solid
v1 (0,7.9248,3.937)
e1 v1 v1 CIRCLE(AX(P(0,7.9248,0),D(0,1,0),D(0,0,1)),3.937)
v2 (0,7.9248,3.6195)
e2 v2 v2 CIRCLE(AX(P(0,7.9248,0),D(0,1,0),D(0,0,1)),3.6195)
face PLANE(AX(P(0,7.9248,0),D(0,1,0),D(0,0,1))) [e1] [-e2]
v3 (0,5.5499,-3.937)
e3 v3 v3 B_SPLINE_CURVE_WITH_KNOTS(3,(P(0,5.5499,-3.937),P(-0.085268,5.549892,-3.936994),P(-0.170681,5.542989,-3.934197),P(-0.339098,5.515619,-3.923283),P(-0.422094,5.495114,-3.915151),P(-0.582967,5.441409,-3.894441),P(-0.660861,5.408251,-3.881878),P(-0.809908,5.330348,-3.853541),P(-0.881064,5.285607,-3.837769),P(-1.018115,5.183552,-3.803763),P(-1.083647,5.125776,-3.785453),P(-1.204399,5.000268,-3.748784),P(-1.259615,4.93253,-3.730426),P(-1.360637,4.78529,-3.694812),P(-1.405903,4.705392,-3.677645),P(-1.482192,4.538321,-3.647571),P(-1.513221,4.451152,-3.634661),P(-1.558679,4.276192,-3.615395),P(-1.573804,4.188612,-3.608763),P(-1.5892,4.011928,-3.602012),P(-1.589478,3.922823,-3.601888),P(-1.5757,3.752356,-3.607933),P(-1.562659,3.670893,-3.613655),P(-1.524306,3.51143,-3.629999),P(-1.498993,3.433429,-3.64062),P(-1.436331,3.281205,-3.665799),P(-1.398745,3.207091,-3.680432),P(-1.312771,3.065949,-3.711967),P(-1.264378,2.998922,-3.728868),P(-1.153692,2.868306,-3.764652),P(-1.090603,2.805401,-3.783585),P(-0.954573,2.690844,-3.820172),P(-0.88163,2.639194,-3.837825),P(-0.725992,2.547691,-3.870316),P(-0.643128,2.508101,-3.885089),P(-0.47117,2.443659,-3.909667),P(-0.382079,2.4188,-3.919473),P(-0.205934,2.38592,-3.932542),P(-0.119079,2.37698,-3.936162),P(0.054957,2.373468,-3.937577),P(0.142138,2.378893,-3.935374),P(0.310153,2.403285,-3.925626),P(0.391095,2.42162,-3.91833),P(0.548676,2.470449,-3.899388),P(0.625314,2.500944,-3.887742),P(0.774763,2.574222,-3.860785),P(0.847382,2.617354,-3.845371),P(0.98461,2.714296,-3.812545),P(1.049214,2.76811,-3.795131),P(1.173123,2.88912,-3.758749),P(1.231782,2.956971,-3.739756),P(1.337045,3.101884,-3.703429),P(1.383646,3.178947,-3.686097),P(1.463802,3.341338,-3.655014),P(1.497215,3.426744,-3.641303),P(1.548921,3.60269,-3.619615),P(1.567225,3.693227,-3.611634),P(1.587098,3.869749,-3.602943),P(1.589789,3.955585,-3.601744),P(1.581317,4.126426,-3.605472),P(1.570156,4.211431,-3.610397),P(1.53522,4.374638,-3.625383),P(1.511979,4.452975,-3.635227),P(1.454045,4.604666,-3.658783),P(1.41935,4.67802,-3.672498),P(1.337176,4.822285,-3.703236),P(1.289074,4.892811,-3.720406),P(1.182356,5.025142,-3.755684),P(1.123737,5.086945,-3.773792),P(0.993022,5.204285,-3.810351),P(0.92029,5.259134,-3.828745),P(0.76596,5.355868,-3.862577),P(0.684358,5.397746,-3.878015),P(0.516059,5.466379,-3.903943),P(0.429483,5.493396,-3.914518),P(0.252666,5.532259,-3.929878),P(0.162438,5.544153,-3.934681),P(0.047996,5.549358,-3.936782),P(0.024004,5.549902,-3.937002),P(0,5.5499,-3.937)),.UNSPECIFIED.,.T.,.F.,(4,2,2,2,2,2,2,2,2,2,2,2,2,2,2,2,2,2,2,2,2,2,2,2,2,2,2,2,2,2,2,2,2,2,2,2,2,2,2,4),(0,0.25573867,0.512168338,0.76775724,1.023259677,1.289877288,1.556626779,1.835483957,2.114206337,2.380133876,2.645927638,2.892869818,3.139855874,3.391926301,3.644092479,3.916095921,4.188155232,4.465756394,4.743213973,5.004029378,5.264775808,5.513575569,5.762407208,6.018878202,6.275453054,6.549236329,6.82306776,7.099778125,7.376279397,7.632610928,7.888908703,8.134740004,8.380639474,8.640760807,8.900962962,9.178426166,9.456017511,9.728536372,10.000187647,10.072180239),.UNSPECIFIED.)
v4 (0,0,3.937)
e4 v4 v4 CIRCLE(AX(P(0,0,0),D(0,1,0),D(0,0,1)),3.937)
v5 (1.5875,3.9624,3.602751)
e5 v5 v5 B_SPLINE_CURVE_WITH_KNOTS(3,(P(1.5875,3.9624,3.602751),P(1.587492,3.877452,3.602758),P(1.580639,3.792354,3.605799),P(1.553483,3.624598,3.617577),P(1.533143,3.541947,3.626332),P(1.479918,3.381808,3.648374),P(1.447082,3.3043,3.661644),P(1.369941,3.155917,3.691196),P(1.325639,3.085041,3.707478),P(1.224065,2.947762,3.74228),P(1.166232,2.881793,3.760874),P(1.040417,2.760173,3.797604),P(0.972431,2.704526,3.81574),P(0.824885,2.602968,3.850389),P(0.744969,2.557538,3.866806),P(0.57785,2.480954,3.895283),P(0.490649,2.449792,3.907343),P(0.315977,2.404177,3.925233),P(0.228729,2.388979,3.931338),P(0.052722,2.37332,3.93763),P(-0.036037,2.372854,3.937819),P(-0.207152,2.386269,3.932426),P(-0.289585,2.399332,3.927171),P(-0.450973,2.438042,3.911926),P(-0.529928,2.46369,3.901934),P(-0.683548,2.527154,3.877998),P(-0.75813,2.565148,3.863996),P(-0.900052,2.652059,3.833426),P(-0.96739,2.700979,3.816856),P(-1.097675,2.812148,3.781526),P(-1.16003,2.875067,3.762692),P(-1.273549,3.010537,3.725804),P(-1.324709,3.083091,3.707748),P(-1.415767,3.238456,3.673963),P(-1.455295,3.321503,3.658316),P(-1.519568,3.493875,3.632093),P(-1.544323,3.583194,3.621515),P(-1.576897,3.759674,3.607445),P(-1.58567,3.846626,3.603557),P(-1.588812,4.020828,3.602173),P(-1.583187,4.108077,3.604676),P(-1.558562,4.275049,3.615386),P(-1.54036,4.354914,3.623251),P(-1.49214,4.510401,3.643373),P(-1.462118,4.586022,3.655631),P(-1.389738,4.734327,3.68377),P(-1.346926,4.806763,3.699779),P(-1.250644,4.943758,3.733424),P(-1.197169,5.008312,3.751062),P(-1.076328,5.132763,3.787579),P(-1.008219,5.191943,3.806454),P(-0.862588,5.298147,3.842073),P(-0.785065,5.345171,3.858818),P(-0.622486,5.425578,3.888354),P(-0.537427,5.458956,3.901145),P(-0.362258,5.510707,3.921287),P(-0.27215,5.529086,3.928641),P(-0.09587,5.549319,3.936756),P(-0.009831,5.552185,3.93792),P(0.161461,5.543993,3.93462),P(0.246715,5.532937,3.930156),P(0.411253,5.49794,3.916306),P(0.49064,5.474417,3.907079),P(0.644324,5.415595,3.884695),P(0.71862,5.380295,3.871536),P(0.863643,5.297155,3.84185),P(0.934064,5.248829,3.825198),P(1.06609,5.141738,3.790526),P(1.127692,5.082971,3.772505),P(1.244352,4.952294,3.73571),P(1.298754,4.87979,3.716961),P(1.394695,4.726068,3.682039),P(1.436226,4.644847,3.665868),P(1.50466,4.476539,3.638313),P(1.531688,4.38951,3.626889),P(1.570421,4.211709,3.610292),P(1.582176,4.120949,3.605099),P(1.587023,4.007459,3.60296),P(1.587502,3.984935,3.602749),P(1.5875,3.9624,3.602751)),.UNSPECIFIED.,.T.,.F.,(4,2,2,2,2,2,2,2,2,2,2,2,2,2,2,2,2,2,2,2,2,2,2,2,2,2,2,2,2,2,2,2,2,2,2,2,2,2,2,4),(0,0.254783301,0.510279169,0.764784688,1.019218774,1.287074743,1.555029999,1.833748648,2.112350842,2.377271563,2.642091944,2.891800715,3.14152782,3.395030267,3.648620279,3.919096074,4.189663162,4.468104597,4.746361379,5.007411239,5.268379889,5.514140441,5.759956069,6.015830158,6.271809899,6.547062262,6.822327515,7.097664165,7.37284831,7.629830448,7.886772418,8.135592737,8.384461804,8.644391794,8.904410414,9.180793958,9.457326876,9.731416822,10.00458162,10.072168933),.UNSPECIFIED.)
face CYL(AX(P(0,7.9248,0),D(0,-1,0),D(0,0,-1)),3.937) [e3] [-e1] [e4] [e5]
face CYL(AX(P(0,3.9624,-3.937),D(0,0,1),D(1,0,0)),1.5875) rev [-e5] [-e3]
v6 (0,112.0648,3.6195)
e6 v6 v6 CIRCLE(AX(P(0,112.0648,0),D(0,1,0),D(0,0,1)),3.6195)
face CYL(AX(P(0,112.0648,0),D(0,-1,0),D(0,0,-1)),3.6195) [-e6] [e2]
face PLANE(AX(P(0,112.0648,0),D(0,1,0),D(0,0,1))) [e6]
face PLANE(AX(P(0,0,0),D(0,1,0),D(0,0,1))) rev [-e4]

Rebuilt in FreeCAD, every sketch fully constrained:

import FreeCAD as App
import Part
import Sketcher

V = App.Vector
Q = App.Units.Quantity

doc = App.newDocument("Part")
body = doc.addObject("PartDesign::Body", "Body")

# Sketch on XZ plane
sketch1 = body.newObject("Sketcher::SketchObject", "Sketch")
sketch1.AttachmentSupport = (doc.getObject("XZ_Plane"), [""])
sketch1.MapMode = "FlatFace"
sketch1.addGeometry(Part.Circle(V(0, 0, 0), V(0, 0, 1), 3.9), False)
sketch1.addConstraint([
    Sketcher.Constraint("Coincident", 0, 3, -1, 1),
    Sketcher.Constraint("Diameter", 0, Q("0.31 in")),
])
pad1 = body.newObject("PartDesign::Pad", "Pad")
pad1.Profile = sketch1
pad1.Length = Q("0.312 in")
pad1.Reversed = True

# Sketch on XZ plane
sketch2 = body.newObject("Sketcher::SketchObject", "Sketch001")
sketch2.AttachmentSupport = (doc.getObject("XZ_Plane"), [""])
sketch2.MapMode = "FlatFace"
sketch2.AttachmentOffset = App.Placement(V(0, 0, -0.312 * 25.4), App.Rotation())
sketch2.addGeometry(Part.Circle(V(0, 0, 0), V(0, 0, 1), 3.6), False)
sketch2.addConstraint([
    Sketcher.Constraint("Coincident", 0, 3, -1, 1),
    Sketcher.Constraint("Diameter", 0, Q("0.285 in")),
])
pad2 = body.newObject("PartDesign::Pad", "Pad001")
pad2.Profile = sketch2
pad2.Length = Q("4.1 in")
pad2.Reversed = True

# Sketch on XY plane
sketch3 = body.newObject("Sketcher::SketchObject", "Sketch002")
sketch3.AttachmentSupport = (doc.getObject("XY_Plane"), [""])
sketch3.MapMode = "FlatFace"
sketch3.addGeometry(Part.Circle(V(0, 4, 0), V(0, 0, 1), 1.6), False)
sketch3.addConstraint([
    Sketcher.Constraint("PointOnObject", 0, 3, -2),
    Sketcher.Constraint("Diameter", 0, Q("0.125 in")),
    Sketcher.Constraint("DistanceY", -1, 1, 0, 3, Q("0.156 in")),
])
pocket1 = body.newObject("PartDesign::Pocket", "Pocket")
pocket1.Profile = sketch3
pocket1.Type = "ThroughAll"
pocket1.Midplane = True

doc.recompute()
